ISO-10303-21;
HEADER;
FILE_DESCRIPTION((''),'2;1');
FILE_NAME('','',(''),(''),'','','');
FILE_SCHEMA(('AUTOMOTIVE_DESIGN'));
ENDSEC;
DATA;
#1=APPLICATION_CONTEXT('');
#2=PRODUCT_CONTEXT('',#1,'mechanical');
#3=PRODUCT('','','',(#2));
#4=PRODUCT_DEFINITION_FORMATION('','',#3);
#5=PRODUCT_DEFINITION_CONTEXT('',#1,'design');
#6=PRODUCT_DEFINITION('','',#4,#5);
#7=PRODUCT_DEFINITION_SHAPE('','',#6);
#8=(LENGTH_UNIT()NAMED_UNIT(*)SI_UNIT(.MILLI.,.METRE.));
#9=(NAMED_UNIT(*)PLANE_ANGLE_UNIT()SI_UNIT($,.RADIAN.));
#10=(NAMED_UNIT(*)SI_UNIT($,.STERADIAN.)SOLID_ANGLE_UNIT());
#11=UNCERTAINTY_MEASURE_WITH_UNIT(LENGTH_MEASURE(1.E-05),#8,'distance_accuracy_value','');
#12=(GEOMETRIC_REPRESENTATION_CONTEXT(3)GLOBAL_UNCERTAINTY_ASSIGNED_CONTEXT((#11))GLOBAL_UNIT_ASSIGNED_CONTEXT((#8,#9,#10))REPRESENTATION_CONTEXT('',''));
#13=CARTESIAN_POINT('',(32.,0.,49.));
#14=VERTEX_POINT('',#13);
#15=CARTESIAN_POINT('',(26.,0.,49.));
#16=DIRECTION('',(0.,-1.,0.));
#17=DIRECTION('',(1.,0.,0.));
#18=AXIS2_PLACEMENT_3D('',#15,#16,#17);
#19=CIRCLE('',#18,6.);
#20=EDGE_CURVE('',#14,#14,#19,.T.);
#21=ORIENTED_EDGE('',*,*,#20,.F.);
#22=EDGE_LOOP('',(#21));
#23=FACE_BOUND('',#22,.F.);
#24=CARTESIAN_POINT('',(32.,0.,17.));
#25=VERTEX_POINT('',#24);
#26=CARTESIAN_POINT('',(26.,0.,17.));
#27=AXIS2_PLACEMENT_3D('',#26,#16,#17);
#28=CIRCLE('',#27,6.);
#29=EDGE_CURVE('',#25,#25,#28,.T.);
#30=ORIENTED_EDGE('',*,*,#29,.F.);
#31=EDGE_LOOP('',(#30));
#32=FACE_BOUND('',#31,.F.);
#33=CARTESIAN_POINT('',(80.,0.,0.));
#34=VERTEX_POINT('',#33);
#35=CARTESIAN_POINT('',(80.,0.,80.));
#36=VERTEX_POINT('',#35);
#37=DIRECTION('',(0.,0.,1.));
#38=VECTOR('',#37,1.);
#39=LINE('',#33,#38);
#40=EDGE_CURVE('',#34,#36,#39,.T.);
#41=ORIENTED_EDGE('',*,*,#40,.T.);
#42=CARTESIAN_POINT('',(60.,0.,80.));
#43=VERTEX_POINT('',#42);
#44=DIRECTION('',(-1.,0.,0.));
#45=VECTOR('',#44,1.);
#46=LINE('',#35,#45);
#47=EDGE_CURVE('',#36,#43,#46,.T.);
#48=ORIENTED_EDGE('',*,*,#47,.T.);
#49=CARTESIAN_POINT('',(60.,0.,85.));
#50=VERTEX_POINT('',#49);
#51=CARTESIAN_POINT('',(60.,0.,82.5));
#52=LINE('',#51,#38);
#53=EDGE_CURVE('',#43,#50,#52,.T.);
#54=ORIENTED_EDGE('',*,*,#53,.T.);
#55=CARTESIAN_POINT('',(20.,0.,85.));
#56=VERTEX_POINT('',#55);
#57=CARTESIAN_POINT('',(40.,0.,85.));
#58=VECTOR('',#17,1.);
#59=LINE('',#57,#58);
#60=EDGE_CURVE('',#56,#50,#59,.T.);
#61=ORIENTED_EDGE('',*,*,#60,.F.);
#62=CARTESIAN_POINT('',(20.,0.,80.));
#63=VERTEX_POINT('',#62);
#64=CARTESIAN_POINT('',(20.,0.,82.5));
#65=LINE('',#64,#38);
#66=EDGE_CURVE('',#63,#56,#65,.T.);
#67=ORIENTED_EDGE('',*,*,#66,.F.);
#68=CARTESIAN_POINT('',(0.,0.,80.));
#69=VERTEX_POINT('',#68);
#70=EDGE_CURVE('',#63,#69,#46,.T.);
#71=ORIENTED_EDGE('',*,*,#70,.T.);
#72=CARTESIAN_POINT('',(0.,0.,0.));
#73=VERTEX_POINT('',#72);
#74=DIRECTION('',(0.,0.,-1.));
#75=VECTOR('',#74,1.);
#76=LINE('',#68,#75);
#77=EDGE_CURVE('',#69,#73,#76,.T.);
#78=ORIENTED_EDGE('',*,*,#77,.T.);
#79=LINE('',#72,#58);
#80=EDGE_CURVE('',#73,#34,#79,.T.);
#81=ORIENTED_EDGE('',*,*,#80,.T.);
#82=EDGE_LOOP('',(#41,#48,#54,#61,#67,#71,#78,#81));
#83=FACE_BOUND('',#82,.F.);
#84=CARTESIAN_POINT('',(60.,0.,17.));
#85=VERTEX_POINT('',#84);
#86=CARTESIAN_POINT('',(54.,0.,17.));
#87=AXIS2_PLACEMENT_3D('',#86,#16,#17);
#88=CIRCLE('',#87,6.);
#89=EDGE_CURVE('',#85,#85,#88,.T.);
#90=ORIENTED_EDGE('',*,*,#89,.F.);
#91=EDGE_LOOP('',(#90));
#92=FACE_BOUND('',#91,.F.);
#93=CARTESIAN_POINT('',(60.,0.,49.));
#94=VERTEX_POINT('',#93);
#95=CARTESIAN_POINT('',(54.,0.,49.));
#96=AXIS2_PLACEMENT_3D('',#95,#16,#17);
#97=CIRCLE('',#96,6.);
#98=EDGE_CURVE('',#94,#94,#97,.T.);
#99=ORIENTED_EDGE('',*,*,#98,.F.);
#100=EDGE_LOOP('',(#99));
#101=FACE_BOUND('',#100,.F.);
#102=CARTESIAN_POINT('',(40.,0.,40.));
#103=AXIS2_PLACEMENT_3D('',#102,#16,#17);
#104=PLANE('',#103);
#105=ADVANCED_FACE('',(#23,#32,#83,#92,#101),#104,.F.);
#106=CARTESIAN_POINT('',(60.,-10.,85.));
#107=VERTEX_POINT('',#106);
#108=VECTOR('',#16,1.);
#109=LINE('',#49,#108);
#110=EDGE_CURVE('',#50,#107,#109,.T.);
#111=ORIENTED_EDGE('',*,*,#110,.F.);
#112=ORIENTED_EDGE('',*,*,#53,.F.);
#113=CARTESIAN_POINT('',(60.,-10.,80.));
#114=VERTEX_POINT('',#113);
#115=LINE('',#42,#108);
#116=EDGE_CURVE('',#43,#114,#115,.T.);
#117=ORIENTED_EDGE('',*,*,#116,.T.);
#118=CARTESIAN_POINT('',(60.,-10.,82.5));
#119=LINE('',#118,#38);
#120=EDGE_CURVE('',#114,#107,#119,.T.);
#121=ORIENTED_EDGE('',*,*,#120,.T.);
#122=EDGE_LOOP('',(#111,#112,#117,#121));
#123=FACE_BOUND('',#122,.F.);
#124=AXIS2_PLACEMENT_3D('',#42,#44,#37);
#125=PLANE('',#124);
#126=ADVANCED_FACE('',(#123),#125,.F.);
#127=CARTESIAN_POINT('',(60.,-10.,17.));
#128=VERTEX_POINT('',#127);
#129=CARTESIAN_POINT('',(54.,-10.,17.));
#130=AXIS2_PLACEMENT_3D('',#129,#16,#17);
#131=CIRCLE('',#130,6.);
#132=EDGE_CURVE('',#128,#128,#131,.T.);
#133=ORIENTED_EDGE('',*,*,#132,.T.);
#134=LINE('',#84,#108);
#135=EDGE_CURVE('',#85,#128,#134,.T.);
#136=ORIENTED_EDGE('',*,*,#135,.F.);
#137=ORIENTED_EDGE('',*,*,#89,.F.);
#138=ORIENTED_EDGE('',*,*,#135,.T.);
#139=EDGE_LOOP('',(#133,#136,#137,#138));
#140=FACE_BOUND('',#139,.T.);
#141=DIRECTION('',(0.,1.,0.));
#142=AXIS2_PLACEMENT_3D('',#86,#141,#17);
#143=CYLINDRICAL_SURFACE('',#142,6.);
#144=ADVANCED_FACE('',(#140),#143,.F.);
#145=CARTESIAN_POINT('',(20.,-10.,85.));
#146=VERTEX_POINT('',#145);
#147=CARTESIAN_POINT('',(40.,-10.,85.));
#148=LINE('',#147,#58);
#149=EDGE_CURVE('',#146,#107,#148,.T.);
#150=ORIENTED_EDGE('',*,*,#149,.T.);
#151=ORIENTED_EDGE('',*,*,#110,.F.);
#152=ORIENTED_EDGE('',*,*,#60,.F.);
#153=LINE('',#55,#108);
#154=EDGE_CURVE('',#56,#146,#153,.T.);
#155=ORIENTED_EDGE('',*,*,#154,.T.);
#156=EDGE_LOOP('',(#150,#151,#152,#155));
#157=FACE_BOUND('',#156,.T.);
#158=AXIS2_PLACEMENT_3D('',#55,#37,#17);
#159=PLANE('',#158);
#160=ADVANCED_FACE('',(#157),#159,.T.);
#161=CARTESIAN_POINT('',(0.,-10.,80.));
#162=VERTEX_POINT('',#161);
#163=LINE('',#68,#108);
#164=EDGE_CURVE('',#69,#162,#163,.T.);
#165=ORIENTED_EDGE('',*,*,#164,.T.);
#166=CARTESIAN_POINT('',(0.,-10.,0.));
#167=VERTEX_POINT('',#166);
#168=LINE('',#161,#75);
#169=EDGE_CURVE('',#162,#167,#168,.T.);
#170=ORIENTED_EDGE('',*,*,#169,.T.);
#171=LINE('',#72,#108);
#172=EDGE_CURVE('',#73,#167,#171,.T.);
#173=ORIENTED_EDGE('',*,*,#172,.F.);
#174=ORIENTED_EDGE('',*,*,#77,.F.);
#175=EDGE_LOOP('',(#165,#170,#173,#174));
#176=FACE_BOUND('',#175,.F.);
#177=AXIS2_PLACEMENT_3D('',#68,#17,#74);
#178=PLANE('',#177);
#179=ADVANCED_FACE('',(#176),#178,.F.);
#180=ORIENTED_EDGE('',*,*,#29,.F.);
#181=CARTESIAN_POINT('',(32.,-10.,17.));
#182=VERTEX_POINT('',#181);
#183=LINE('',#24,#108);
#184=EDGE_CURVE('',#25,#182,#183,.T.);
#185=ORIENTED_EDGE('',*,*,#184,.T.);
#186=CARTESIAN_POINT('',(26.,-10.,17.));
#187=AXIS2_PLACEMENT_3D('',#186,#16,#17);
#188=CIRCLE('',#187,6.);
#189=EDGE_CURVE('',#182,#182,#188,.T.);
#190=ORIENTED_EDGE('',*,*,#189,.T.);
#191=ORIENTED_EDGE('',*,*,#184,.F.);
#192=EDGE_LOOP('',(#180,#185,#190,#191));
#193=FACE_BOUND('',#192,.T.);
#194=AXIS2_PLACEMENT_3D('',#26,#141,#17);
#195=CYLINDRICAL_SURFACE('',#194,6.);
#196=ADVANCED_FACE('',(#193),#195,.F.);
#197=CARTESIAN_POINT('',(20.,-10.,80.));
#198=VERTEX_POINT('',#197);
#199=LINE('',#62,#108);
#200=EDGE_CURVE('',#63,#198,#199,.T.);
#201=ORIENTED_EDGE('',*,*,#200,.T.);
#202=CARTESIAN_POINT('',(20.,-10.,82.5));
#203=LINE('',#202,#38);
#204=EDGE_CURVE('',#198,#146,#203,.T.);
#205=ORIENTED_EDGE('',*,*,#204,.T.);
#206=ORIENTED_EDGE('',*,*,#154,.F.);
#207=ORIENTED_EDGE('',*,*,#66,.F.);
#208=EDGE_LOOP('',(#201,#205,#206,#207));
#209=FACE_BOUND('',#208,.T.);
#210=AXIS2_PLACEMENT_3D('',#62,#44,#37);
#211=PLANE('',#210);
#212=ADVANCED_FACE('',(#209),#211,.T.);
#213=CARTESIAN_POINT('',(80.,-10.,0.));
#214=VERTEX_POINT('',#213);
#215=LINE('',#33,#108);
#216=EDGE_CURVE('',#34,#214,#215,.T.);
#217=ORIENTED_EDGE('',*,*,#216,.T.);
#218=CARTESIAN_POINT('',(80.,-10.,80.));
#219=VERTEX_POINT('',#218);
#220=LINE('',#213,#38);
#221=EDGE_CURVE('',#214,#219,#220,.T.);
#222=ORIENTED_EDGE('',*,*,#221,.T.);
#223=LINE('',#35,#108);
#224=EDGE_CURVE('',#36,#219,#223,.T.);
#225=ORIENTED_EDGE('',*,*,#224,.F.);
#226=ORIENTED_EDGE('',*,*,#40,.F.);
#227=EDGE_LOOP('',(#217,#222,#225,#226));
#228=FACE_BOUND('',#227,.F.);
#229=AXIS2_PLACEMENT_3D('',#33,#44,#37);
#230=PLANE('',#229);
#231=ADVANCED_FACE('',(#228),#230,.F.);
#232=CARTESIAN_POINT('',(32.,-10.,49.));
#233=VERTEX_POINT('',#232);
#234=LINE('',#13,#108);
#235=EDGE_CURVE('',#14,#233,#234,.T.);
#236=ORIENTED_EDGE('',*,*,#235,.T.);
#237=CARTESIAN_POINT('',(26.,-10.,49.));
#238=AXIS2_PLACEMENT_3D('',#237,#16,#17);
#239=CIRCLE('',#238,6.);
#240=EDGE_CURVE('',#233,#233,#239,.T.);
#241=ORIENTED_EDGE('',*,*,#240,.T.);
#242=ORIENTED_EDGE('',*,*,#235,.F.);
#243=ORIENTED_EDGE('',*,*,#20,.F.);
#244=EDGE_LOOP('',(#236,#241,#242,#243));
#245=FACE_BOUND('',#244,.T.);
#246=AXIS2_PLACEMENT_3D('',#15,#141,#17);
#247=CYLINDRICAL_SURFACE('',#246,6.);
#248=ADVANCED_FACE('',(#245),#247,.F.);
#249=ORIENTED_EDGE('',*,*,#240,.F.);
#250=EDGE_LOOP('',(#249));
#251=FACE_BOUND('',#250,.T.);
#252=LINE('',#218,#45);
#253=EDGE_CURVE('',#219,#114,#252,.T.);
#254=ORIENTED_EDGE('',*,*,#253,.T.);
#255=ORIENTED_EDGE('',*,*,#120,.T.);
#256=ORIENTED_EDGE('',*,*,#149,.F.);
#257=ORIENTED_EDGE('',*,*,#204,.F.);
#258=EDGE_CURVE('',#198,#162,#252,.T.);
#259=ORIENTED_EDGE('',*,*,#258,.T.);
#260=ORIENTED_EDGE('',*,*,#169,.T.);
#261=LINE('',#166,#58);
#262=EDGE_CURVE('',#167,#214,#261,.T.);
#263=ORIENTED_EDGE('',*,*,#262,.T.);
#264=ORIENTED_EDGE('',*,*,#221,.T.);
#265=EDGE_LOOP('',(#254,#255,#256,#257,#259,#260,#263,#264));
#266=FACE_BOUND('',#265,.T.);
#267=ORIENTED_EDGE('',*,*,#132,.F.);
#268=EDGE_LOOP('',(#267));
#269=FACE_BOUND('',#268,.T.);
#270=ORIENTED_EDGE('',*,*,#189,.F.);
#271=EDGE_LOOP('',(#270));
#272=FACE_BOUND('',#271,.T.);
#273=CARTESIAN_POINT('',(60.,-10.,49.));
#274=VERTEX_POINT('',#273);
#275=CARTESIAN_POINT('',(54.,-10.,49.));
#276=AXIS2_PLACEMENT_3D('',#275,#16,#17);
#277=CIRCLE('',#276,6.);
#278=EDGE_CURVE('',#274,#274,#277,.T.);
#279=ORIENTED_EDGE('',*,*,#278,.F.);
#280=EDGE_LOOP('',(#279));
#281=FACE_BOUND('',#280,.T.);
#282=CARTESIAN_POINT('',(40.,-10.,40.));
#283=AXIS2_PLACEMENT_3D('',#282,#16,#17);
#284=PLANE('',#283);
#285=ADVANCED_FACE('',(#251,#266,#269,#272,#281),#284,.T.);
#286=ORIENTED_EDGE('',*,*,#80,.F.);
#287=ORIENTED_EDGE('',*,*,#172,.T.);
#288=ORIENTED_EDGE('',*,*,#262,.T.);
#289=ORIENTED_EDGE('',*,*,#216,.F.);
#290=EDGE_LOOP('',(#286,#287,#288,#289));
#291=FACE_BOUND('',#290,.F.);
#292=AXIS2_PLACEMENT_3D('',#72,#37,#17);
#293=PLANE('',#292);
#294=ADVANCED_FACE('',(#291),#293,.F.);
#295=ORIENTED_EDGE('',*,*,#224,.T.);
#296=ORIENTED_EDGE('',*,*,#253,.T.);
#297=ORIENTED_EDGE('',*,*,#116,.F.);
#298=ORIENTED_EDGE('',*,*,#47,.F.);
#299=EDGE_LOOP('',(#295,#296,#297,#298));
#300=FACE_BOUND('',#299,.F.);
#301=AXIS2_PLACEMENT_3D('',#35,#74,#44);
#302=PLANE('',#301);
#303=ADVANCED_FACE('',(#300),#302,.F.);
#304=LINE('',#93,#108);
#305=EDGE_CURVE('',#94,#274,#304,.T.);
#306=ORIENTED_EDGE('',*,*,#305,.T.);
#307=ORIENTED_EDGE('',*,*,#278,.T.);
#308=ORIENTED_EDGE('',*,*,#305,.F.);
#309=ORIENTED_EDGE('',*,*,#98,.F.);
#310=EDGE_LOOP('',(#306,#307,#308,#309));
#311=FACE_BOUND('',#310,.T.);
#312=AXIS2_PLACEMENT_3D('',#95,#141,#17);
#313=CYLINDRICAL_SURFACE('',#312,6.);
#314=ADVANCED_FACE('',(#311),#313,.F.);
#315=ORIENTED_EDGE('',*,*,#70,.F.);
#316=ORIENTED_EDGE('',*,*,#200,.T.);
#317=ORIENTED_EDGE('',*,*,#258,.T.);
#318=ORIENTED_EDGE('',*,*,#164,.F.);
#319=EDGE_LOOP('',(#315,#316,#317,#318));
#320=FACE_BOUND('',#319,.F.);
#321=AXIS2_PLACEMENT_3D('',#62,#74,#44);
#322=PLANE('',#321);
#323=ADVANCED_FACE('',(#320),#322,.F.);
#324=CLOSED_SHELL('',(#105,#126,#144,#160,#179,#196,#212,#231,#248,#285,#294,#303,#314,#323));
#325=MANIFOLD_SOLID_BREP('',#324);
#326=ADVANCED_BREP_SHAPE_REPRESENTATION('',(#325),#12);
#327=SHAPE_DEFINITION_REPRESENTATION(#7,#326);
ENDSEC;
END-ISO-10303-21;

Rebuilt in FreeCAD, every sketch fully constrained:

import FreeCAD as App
import Part
import Sketcher

V = App.Vector
Q = App.Units.Quantity

doc = App.newDocument("Part")
params = doc.addObject("Spreadsheet::Sheet", "Params")
for row, (alias, value) in enumerate([
    ("sketch1_diameter", "12 mm"),
    ("sketch1_width", "80 mm"),
    ("sketch1_width2", "20 mm"),
    ("sketch1_height", "5 mm"),
    ("pad1_length", "10 mm"),
], start=1):
    params.set(f"A{row}", alias)
    params.set(f"B{row}", "=" + value)
    params.setAlias(f"B{row}", alias)

body = doc.addObject("PartDesign::Body", "Body")

sketch1 = doc.addObject("Sketcher::SketchObject", "Sketch")
body.addObject(sketch1)
sketch1.AttachmentSupport = (doc.XZ_Plane, [""])
sketch1.MapMode = "FlatFace"
sketch1.addGeometry(Part.LineSegment(V(0, 80, 0), V(0, 0, 0)), False)
sketch1.addGeometry(Part.LineSegment(V(0, 0, 0), V(80, 0, 0)), False)
sketch1.addGeometry(Part.LineSegment(V(80, 0, 0), V(80, 80, 0)), False)
sketch1.addGeometry(Part.LineSegment(V(80, 80, 0), V(60, 80, 0)), False)
sketch1.addGeometry(Part.LineSegment(V(60, 80, 0), V(60, 85, 0)), False)
sketch1.addGeometry(Part.LineSegment(V(60, 85, 0), V(20, 85, 0)), False)
sketch1.addGeometry(Part.LineSegment(V(20, 85, 0), V(20, 80, 0)), False)
sketch1.addGeometry(Part.LineSegment(V(20, 80, 0), V(0, 80, 0)), False)
sketch1.addGeometry(Part.Circle(V(26, 17, 0), V(0, 0, 1), 6), False)
sketch1.addGeometry(Part.Circle(V(54, 17, 0), V(0, 0, 1), 6), False)
sketch1.addGeometry(Part.Circle(V(26, 49, 0), V(0, 0, 1), 6), False)
sketch1.addGeometry(Part.Circle(V(54, 49, 0), V(0, 0, 1), 6), False)
sketch1.addConstraint(Sketcher.Constraint("Coincident", 0, 2, 1, 1))
sketch1.addConstraint(Sketcher.Constraint("Coincident", 1, 2, 2, 1))
sketch1.addConstraint(Sketcher.Constraint("Coincident", 2, 2, 3, 1))
sketch1.addConstraint(Sketcher.Constraint("Coincident", 3, 2, 4, 1))
sketch1.addConstraint(Sketcher.Constraint("Coincident", 4, 2, 5, 1))
sketch1.addConstraint(Sketcher.Constraint("Coincident", 5, 2, 6, 1))
sketch1.addConstraint(Sketcher.Constraint("Coincident", 6, 2, 7, 1))
sketch1.addConstraint(Sketcher.Constraint("Coincident", 7, 2, 0, 1))
sketch1.addConstraint(Sketcher.Constraint("Vertical", 0))
sketch1.addConstraint(Sketcher.Constraint("Horizontal", 1))
sketch1.addConstraint(Sketcher.Constraint("Vertical", 2))
sketch1.addConstraint(Sketcher.Constraint("Horizontal", 3))
sketch1.addConstraint(Sketcher.Constraint("Vertical", 4))
sketch1.addConstraint(Sketcher.Constraint("Horizontal", 5))
sketch1.addConstraint(Sketcher.Constraint("Vertical", 6))
sketch1.addConstraint(Sketcher.Constraint("Horizontal", 7))
sketch1.addConstraint(Sketcher.Constraint("Coincident", 0, 2, -1, 1))
sketch1.addConstraint(Sketcher.Constraint("Equal", 8, 9))
sketch1.addConstraint(Sketcher.Constraint("Equal", 9, 10))
sketch1.addConstraint(Sketcher.Constraint("Equal", 10, 11))
sketch1.addConstraint(Sketcher.Constraint("Horizontal", 8, 3, 9, 3))
sketch1.addConstraint(Sketcher.Constraint("Horizontal", 10, 3, 11, 3))
sketch1.addConstraint(Sketcher.Constraint("Horizontal", 3, 2, 6, 2))
sketch1.addConstraint(Sketcher.Constraint("Vertical", 8, 3, 10, 3))
sketch1.addConstraint(Sketcher.Constraint("Vertical", 9, 3, 11, 3))
sketch1.addConstraint(Sketcher.Constraint("Equal", 3, 7))
sketch1.addConstraint(Sketcher.Constraint("Equal", 1, 0))
sketch1.addConstraint(Sketcher.Constraint("Diameter", 8, Q("12 mm")))
sketch1.addConstraint(Sketcher.Constraint("DistanceX", 1, 1, 1, 2, Q("80 mm")))
sketch1.addConstraint(Sketcher.Constraint("DistanceX", 3, 2, 3, 1, Q("20 mm")))
sketch1.addConstraint(Sketcher.Constraint("DistanceY", 4, 1, 4, 2, Q("5 mm")))
sketch1.addConstraint(Sketcher.Constraint("DistanceX", -1, 1, 8, 3, Q("26 mm")))
sketch1.addConstraint(Sketcher.Constraint("DistanceY", -1, 1, 8, 3, Q("17 mm")))
sketch1.addConstraint(Sketcher.Constraint("DistanceX", -1, 1, 9, 3, Q("54 mm")))
sketch1.addConstraint(Sketcher.Constraint("DistanceY", -1, 1, 10, 3, Q("49 mm")))
sketch1.setExpression("Constraints[27]", "Params.sketch1_diameter")
sketch1.setExpression("Constraints[28]", "Params.sketch1_width")
sketch1.setExpression("Constraints[29]", "Params.sketch1_width2")
sketch1.setExpression("Constraints[30]", "Params.sketch1_height")
pad1 = doc.addObject("PartDesign::Pad", "Pad")
body.addObject(pad1)
pad1.Profile = sketch1
pad1.setExpression("Length", "Params.pad1_length")

doc.recompute()
